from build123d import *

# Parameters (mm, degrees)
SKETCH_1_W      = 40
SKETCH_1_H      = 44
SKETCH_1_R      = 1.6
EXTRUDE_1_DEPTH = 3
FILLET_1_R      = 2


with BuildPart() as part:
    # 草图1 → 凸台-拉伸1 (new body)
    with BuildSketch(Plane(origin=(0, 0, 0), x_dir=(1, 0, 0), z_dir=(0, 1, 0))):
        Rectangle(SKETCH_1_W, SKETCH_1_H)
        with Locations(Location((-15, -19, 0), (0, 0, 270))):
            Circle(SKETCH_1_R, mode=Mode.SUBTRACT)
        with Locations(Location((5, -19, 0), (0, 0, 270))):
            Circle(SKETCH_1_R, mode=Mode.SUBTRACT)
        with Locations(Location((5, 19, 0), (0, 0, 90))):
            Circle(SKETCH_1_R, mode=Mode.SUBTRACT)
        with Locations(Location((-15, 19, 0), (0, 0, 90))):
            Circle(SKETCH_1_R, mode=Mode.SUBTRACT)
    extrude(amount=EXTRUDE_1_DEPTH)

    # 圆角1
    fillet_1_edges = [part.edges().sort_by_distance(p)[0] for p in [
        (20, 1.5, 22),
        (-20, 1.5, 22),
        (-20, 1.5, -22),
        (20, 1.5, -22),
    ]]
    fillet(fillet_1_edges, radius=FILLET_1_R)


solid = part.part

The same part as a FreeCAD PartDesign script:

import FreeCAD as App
import Part
import Sketcher


def edges_at(feature, points):
    """Names of the edges that pass closest to the given points."""
    edges = feature.Shape.Edges
    near = lambda p: min(range(len(edges)), key=lambda i: edges[i].distToShape(Part.Vertex(*p))[0])
    return sorted({f"Edge{near(p) + 1}" for p in points})

doc = App.newDocument("Part")
body = doc.addObject("PartDesign::Body", "Body")

# Sketch on XZ plane
sketch1 = doc.addObject("Sketcher::SketchObject", "Sketch")
body.addObject(sketch1)
sketch1.AttachmentSupport = (doc.XZ_Plane, [""])
sketch1.MapMode = "FlatFace"
sketch1.addGeometry(Part.LineSegment(App.Vector(-20, -22, 0), App.Vector(-20, 22, 0)), False)
sketch1.addGeometry(Part.LineSegment(App.Vector(-20, 22, 0), App.Vector(20, 22, 0)), False)
sketch1.addGeometry(Part.LineSegment(App.Vector(20, 22, 0), App.Vector(20, -22, 0)), False)
sketch1.addGeometry(Part.LineSegment(App.Vector(20, -22, 0), App.Vector(-20, -22, 0)), False)
sketch1.addGeometry(Part.Circle(App.Vector(-15, 19, 0), App.Vector(0, 0, 1), 1.6), False)
sketch1.addGeometry(Part.Circle(App.Vector(5, 19, 0), App.Vector(0, 0, 1), 1.6), False)
sketch1.addGeometry(Part.Circle(App.Vector(-15, -19, 0), App.Vector(0, 0, 1), 1.6), False)
sketch1.addGeometry(Part.Circle(App.Vector(5, -19, 0), App.Vector(0, 0, 1), 1.6), False)
sketch1.addConstraint(Sketcher.Constraint("Coincident", 0, 2, 1, 1))
sketch1.addConstraint(Sketcher.Constraint("Coincident", 1, 2, 2, 1))
sketch1.addConstraint(Sketcher.Constraint("Coincident", 2, 2, 3, 1))
sketch1.addConstraint(Sketcher.Constraint("Coincident", 3, 2, 0, 1))
sketch1.addConstraint(Sketcher.Constraint("Vertical", 0))
sketch1.addConstraint(Sketcher.Constraint("Horizontal", 1))
sketch1.addConstraint(Sketcher.Constraint("Vertical", 2))
sketch1.addConstraint(Sketcher.Constraint("Horizontal", 3))
sketch1.addConstraint(Sketcher.Constraint("Equal", 4, 5))
sketch1.addConstraint(Sketcher.Constraint("Equal", 5, 6))
sketch1.addConstraint(Sketcher.Constraint("Equal", 6, 7))
sketch1.addConstraint(Sketcher.Constraint("Symmetric", 0, 2, 2, 2, -1, 1))
sketch1.addConstraint(Sketcher.Constraint("Symmetric", 4, 3, 6, 3, -1))
sketch1.addConstraint(Sketcher.Constraint("Symmetric", 5, 3, 7, 3, -1))
sketch1.addConstraint(Sketcher.Constraint("Horizontal", 4, 3, 5, 3))
sketch1.addConstraint(Sketcher.Constraint("Diameter", 4, 3.2))
sketch1.addConstraint(Sketcher.Constraint("DistanceX", 1, 1, 1, 2, 40.0))
sketch1.addConstraint(Sketcher.Constraint("DistanceY", 0, 1, 0, 2, 44.0))
sketch1.addConstraint(Sketcher.Constraint("DistanceX", 4, 3, -1, 1, 15.0))
sketch1.addConstraint(Sketcher.Constraint("DistanceY", -1, 1, 4, 3, 19.0))
sketch1.addConstraint(Sketcher.Constraint("DistanceX", -1, 1, 5, 3, 5.0))
pad1 = doc.addObject("PartDesign::Pad", "Pad")
body.addObject(pad1)
pad1.Profile = sketch1
pad1.Length = 3
pad1.Reversed = True
doc.recompute()

fillet = doc.addObject("PartDesign::Fillet", "Fillet")
body.addObject(fillet)
fillet.Base = (pad1, edges_at(pad1, [
    (20, 1.5, 22),
    (-20, 1.5, 22),
    (-20, 1.5, -22),
    (20, 1.5, -22),
]))
fillet.Radius = 2

doc.recompute()
